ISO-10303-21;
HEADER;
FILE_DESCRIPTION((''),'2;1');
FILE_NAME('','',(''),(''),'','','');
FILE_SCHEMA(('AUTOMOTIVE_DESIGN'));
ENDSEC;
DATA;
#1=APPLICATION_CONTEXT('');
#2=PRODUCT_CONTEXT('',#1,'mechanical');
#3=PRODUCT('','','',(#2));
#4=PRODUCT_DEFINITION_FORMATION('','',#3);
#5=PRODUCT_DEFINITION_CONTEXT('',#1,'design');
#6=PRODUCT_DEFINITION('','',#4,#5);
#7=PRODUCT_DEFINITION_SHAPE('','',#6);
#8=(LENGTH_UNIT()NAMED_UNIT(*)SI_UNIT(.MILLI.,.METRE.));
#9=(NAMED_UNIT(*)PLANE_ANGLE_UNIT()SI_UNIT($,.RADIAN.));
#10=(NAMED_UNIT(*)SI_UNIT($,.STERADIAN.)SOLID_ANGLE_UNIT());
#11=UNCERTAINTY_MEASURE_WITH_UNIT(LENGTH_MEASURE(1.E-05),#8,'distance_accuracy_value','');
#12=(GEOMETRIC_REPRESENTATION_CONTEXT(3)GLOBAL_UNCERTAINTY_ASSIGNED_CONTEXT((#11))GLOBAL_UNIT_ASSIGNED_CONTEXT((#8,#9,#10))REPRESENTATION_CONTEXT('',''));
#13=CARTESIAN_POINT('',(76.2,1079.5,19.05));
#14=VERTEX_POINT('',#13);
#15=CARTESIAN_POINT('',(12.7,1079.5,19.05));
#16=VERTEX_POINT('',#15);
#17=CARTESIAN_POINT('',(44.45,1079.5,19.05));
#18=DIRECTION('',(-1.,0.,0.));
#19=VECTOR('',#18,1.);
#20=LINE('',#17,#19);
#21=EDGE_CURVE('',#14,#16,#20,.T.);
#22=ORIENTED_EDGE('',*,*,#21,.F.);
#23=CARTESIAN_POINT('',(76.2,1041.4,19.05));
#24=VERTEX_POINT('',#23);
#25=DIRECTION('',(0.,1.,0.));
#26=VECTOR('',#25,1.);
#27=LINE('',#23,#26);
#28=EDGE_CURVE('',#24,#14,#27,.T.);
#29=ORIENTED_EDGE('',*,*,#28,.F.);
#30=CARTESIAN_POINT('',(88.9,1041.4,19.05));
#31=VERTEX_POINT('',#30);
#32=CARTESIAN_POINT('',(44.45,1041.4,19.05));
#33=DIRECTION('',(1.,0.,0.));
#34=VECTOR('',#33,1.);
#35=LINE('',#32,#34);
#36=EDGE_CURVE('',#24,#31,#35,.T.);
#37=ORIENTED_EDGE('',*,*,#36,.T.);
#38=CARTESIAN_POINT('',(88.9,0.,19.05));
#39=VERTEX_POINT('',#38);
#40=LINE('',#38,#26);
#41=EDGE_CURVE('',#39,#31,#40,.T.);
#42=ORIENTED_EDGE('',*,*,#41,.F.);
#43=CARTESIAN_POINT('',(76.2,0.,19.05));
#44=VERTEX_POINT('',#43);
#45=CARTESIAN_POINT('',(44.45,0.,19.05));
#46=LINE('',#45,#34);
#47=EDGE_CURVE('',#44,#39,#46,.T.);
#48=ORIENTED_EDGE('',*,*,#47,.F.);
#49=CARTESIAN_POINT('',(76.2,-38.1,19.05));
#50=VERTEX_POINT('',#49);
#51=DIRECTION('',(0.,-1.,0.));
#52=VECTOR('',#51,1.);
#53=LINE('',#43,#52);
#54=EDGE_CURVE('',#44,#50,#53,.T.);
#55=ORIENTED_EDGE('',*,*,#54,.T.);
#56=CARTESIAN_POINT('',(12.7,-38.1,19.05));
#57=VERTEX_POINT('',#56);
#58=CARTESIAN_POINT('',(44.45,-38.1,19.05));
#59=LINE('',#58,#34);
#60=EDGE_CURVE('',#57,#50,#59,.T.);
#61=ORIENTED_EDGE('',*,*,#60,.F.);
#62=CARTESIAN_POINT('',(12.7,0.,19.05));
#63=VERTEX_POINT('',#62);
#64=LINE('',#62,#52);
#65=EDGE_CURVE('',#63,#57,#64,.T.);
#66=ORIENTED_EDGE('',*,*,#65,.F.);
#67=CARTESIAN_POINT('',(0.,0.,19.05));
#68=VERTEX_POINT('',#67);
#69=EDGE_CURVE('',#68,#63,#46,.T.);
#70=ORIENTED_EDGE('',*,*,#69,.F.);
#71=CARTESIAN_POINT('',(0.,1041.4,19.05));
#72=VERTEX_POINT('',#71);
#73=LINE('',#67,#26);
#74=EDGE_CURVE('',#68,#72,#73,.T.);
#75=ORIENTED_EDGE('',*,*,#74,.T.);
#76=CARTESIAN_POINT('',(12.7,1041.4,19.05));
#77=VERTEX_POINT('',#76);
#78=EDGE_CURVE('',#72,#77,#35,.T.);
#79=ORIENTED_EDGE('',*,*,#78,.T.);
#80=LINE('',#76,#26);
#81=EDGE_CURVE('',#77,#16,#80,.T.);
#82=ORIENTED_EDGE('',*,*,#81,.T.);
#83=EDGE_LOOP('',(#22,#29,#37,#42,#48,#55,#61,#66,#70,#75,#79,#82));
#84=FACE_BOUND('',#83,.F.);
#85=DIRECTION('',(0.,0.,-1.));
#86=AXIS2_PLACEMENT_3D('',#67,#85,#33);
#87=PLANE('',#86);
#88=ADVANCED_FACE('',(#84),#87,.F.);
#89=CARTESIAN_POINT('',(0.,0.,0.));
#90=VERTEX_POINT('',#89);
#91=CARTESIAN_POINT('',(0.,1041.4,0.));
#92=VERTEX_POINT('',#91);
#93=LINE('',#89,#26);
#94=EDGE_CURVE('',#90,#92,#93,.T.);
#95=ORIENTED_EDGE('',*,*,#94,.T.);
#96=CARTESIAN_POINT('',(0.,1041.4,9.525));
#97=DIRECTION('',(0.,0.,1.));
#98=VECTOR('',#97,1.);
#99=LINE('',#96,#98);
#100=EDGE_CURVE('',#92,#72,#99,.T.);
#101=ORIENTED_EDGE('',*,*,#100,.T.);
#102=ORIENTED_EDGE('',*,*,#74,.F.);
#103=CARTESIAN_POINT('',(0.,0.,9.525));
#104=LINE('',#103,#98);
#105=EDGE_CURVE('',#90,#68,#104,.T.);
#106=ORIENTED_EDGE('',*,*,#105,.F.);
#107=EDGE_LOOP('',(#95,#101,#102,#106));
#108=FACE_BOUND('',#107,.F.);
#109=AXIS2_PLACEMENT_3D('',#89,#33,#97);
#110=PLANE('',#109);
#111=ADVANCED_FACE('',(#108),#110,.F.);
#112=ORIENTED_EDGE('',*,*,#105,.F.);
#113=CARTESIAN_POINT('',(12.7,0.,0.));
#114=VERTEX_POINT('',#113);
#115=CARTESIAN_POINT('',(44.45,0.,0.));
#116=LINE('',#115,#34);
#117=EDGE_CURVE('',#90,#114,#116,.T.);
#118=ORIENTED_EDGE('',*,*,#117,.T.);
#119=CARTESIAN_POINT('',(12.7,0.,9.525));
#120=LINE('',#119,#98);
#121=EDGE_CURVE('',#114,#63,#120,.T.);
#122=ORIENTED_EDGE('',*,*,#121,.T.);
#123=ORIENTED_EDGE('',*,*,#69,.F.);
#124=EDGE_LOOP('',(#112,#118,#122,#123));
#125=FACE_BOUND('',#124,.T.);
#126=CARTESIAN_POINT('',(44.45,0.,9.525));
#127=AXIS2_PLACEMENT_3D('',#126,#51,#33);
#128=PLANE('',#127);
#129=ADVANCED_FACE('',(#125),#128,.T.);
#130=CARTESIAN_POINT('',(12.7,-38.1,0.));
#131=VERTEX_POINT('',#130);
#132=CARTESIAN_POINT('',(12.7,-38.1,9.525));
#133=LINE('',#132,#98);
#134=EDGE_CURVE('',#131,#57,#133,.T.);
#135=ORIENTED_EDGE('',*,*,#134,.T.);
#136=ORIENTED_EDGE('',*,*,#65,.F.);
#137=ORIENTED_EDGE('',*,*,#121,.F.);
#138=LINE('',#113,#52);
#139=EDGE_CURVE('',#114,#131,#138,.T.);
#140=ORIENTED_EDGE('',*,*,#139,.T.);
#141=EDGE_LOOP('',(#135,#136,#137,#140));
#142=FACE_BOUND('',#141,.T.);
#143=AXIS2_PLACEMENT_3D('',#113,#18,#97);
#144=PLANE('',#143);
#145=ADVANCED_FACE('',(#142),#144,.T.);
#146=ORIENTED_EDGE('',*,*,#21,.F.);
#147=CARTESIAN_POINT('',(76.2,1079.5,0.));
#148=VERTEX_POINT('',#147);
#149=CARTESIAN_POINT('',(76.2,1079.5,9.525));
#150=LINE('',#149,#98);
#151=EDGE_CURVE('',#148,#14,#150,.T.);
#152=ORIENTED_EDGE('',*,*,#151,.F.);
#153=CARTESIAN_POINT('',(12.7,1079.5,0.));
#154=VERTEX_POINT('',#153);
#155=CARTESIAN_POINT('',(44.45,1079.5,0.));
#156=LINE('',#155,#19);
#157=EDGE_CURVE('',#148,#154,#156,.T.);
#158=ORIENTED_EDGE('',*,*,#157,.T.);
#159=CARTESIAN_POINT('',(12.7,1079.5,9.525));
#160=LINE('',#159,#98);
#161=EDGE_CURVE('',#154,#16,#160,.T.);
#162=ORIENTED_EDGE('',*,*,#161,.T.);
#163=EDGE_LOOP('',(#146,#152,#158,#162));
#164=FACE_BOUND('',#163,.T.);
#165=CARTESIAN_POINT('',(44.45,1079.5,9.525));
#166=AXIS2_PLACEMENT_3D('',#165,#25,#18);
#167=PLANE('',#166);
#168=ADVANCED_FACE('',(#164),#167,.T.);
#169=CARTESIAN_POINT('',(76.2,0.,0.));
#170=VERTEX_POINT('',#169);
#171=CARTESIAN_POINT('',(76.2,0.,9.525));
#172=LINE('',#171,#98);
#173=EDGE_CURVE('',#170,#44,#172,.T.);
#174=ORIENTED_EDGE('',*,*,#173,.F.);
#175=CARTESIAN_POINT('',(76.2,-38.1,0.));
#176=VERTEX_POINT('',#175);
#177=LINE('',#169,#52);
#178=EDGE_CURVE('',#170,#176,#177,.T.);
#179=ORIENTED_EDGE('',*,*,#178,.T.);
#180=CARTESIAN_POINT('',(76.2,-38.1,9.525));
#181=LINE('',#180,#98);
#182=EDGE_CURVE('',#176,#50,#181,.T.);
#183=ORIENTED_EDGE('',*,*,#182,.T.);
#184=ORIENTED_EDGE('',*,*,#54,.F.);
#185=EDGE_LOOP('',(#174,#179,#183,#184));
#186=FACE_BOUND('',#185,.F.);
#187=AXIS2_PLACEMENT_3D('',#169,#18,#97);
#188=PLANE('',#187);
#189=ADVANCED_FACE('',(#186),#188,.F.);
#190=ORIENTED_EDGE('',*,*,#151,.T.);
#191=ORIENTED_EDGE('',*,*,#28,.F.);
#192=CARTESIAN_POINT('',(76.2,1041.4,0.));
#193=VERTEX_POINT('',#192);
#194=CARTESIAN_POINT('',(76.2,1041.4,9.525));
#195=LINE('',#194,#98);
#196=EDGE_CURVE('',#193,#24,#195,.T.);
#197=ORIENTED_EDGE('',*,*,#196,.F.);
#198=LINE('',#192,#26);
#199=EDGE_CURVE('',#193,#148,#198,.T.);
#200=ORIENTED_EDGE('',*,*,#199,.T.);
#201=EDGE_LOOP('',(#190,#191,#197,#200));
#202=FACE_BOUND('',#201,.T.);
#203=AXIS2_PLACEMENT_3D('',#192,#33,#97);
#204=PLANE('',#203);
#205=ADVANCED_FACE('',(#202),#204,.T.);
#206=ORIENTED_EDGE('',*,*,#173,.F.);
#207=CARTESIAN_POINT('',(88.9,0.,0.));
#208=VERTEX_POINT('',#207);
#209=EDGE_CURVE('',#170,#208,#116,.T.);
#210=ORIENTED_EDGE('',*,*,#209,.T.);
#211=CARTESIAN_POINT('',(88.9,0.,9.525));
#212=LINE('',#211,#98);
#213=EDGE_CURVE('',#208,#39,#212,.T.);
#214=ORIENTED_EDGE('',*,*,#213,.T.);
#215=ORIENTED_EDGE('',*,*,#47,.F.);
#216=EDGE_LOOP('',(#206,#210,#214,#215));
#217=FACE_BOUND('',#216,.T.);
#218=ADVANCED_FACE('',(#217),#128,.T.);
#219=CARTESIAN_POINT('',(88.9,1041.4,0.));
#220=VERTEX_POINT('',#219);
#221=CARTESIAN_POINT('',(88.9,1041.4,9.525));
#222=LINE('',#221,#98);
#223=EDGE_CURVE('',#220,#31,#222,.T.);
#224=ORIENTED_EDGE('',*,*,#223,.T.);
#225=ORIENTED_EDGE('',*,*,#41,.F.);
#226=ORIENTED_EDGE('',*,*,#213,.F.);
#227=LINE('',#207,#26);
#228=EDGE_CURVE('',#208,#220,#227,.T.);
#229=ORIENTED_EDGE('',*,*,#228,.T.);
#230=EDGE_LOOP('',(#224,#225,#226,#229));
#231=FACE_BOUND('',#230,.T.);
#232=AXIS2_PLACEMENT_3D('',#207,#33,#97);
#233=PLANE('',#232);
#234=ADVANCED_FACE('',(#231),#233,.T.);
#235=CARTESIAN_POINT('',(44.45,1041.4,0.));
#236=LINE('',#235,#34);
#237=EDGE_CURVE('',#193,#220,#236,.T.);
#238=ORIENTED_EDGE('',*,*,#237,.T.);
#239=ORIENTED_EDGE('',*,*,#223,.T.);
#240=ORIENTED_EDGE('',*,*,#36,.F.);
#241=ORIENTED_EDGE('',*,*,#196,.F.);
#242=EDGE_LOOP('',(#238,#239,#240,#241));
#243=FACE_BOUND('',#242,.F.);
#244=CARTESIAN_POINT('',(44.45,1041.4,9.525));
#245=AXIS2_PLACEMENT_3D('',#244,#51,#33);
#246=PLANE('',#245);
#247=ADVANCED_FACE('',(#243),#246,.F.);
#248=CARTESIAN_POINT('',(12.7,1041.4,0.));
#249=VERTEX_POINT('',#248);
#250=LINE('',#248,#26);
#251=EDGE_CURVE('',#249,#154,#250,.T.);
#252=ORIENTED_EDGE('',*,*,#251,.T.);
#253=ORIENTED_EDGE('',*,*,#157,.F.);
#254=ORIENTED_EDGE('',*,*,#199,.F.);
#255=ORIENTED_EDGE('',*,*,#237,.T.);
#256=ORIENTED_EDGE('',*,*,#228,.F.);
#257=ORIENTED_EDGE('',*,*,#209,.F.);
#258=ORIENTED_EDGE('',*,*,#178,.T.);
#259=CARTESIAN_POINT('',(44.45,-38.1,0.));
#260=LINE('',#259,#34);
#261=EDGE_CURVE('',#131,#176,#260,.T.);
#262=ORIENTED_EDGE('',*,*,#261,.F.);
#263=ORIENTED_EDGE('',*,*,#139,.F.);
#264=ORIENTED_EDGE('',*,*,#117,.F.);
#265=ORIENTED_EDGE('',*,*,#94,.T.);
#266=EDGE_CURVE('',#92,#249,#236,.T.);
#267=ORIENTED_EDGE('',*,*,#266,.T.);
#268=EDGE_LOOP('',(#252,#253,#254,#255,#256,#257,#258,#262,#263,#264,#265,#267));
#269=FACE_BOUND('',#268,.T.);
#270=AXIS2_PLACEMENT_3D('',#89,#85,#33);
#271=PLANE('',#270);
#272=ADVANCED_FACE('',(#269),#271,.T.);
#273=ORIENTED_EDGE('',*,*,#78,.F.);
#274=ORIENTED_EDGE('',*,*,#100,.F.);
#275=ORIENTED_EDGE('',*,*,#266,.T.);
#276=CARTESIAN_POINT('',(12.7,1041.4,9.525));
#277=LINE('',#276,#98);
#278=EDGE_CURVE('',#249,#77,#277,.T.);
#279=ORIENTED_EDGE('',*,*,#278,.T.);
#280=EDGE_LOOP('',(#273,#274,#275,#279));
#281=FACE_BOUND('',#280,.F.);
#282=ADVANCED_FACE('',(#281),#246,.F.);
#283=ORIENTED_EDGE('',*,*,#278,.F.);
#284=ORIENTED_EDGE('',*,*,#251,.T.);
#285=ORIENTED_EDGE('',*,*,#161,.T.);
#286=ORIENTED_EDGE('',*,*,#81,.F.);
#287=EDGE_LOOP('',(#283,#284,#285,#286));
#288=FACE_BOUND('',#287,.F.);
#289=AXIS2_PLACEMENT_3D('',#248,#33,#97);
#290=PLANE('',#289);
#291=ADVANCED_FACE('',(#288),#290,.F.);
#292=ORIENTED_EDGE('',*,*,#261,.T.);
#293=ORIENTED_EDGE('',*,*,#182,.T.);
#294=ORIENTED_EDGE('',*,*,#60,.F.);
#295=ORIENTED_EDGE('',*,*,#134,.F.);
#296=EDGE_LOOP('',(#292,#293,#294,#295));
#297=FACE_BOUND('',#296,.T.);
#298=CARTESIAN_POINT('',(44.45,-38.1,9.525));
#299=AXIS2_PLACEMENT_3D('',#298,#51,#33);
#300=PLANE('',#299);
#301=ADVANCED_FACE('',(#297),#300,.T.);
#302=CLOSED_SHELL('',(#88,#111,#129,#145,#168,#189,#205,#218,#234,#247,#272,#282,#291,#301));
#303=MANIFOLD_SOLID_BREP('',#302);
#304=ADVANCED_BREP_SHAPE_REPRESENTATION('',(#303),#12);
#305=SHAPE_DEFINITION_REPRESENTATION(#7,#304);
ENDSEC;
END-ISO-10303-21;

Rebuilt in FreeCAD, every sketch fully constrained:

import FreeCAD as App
import Part
import Sketcher
Q = App.Units.Quantity

doc = App.newDocument("Part")
body = doc.addObject("PartDesign::Body", "Body")

sketch1 = body.newObject("Sketcher::SketchObject", "Sketch")
sketch1.AttachmentSupport = (doc.getObject("XZ_Plane"), [""])
sketch1.MapMode = "FlatFace"
sketch1.addGeometry([
    Part.LineSegment(App.Vector(0, 19, 0), App.Vector(0, 0, 0)),
    Part.LineSegment(App.Vector(0, 0, 0), App.Vector(89, 0, 0)),
    Part.LineSegment(App.Vector(89, 0, 0), App.Vector(89, 19, 0)),
    Part.LineSegment(App.Vector(89, 19, 0), App.Vector(0, 19, 0)),
], False)
sketch1.addConstraint([
    Sketcher.Constraint("Coincident", 0, 2, 1, 1),
    Sketcher.Constraint("Coincident", 1, 2, 2, 1),
    Sketcher.Constraint("Coincident", 2, 2, 3, 1),
    Sketcher.Constraint("Coincident", 3, 2, 0, 1),
    Sketcher.Constraint("Vertical", 0),
    Sketcher.Constraint("Horizontal", 1),
    Sketcher.Constraint("Vertical", 2),
    Sketcher.Constraint("Horizontal", 3),
    Sketcher.Constraint("Coincident", 0, 2, -1, 1),
    Sketcher.Constraint("DistanceX", 1, 1, 1, 2, Q("3.5 in")),
    Sketcher.Constraint("DistanceY", 0, 2, 0, 1, Q("0.75 in")),
])
pad1 = body.newObject("PartDesign::Pad", "Pad")
pad1.Profile = sketch1
pad1.Length = Q("41 in")
pad1.Reversed = True

sketch2 = body.newObject("Sketcher::SketchObject", "Sketch001")
sketch2.AttachmentSupport = (doc.getObject("XZ_Plane"), [""])
sketch2.MapMode = "FlatFace"
sketch2.addGeometry([
    Part.LineSegment(App.Vector(13, 19, 0), App.Vector(13, 0, 0)),
    Part.LineSegment(App.Vector(13, 0, 0), App.Vector(76, 0, 0)),
    Part.LineSegment(App.Vector(76, 0, 0), App.Vector(76, 19, 0)),
    Part.LineSegment(App.Vector(76, 19, 0), App.Vector(13, 19, 0)),
], False)
sketch2.addConstraint([
    Sketcher.Constraint("Coincident", 0, 2, 1, 1),
    Sketcher.Constraint("Coincident", 1, 2, 2, 1),
    Sketcher.Constraint("Coincident", 2, 2, 3, 1),
    Sketcher.Constraint("Coincident", 3, 2, 0, 1),
    Sketcher.Constraint("Vertical", 0),
    Sketcher.Constraint("Horizontal", 1),
    Sketcher.Constraint("Vertical", 2),
    Sketcher.Constraint("Horizontal", 3),
    Sketcher.Constraint("PointOnObject", 0, 2, -1),
    Sketcher.Constraint("DistanceX", 1, 1, 1, 2, Q("2.5 in")),
    Sketcher.Constraint("DistanceX", -1, 1, 1, 2, Q("3 in")),
    Sketcher.Constraint("DistanceY", 0, 2, 0, 1, Q("0.75 in")),
])
pad2 = body.newObject("PartDesign::Pad", "Pad001")
pad2.Profile = sketch2
pad2.Length = Q("1.5 in")

sketch3 = body.newObject("Sketcher::SketchObject", "Sketch002")
sketch3.AttachmentSupport = (doc.getObject("XZ_Plane"), [""])
sketch3.MapMode = "FlatFace"
sketch3.AttachmentOffset = App.Placement(App.Vector(0, 0, -41 * 25.4), App.Rotation())
sketch3.addGeometry([
    Part.LineSegment(App.Vector(76, 19, 0), App.Vector(76, 0, 0)),
    Part.LineSegment(App.Vector(76, 0, 0), App.Vector(13, 0, 0)),
    Part.LineSegment(App.Vector(13, 0, 0), App.Vector(13, 19, 0)),
    Part.LineSegment(App.Vector(13, 19, 0), App.Vector(76, 19, 0)),
], False)
sketch3.addConstraint([
    Sketcher.Constraint("Coincident", 0, 2, 1, 1),
    Sketcher.Constraint("Coincident", 1, 2, 2, 1),
    Sketcher.Constraint("Coincident", 2, 2, 3, 1),
    Sketcher.Constraint("Coincident", 3, 2, 0, 1),
    Sketcher.Constraint("Vertical", 0),
    Sketcher.Constraint("Horizontal", 1),
    Sketcher.Constraint("Vertical", 2),
    Sketcher.Constraint("Horizontal", 3),
    Sketcher.Constraint("PointOnObject", 0, 2, -1),
    Sketcher.Constraint("DistanceX", 1, 2, 1, 1, Q("2.5 in")),
    Sketcher.Constraint("DistanceX", -1, 1, 0, 2, Q("3 in")),
    Sketcher.Constraint("DistanceY", 0, 2, 0, 1, Q("0.75 in")),
])
pad3 = body.newObject("PartDesign::Pad", "Pad002")
pad3.Profile = sketch3
pad3.Length = Q("1.5 in")
pad3.Reversed = True

doc.recompute()
